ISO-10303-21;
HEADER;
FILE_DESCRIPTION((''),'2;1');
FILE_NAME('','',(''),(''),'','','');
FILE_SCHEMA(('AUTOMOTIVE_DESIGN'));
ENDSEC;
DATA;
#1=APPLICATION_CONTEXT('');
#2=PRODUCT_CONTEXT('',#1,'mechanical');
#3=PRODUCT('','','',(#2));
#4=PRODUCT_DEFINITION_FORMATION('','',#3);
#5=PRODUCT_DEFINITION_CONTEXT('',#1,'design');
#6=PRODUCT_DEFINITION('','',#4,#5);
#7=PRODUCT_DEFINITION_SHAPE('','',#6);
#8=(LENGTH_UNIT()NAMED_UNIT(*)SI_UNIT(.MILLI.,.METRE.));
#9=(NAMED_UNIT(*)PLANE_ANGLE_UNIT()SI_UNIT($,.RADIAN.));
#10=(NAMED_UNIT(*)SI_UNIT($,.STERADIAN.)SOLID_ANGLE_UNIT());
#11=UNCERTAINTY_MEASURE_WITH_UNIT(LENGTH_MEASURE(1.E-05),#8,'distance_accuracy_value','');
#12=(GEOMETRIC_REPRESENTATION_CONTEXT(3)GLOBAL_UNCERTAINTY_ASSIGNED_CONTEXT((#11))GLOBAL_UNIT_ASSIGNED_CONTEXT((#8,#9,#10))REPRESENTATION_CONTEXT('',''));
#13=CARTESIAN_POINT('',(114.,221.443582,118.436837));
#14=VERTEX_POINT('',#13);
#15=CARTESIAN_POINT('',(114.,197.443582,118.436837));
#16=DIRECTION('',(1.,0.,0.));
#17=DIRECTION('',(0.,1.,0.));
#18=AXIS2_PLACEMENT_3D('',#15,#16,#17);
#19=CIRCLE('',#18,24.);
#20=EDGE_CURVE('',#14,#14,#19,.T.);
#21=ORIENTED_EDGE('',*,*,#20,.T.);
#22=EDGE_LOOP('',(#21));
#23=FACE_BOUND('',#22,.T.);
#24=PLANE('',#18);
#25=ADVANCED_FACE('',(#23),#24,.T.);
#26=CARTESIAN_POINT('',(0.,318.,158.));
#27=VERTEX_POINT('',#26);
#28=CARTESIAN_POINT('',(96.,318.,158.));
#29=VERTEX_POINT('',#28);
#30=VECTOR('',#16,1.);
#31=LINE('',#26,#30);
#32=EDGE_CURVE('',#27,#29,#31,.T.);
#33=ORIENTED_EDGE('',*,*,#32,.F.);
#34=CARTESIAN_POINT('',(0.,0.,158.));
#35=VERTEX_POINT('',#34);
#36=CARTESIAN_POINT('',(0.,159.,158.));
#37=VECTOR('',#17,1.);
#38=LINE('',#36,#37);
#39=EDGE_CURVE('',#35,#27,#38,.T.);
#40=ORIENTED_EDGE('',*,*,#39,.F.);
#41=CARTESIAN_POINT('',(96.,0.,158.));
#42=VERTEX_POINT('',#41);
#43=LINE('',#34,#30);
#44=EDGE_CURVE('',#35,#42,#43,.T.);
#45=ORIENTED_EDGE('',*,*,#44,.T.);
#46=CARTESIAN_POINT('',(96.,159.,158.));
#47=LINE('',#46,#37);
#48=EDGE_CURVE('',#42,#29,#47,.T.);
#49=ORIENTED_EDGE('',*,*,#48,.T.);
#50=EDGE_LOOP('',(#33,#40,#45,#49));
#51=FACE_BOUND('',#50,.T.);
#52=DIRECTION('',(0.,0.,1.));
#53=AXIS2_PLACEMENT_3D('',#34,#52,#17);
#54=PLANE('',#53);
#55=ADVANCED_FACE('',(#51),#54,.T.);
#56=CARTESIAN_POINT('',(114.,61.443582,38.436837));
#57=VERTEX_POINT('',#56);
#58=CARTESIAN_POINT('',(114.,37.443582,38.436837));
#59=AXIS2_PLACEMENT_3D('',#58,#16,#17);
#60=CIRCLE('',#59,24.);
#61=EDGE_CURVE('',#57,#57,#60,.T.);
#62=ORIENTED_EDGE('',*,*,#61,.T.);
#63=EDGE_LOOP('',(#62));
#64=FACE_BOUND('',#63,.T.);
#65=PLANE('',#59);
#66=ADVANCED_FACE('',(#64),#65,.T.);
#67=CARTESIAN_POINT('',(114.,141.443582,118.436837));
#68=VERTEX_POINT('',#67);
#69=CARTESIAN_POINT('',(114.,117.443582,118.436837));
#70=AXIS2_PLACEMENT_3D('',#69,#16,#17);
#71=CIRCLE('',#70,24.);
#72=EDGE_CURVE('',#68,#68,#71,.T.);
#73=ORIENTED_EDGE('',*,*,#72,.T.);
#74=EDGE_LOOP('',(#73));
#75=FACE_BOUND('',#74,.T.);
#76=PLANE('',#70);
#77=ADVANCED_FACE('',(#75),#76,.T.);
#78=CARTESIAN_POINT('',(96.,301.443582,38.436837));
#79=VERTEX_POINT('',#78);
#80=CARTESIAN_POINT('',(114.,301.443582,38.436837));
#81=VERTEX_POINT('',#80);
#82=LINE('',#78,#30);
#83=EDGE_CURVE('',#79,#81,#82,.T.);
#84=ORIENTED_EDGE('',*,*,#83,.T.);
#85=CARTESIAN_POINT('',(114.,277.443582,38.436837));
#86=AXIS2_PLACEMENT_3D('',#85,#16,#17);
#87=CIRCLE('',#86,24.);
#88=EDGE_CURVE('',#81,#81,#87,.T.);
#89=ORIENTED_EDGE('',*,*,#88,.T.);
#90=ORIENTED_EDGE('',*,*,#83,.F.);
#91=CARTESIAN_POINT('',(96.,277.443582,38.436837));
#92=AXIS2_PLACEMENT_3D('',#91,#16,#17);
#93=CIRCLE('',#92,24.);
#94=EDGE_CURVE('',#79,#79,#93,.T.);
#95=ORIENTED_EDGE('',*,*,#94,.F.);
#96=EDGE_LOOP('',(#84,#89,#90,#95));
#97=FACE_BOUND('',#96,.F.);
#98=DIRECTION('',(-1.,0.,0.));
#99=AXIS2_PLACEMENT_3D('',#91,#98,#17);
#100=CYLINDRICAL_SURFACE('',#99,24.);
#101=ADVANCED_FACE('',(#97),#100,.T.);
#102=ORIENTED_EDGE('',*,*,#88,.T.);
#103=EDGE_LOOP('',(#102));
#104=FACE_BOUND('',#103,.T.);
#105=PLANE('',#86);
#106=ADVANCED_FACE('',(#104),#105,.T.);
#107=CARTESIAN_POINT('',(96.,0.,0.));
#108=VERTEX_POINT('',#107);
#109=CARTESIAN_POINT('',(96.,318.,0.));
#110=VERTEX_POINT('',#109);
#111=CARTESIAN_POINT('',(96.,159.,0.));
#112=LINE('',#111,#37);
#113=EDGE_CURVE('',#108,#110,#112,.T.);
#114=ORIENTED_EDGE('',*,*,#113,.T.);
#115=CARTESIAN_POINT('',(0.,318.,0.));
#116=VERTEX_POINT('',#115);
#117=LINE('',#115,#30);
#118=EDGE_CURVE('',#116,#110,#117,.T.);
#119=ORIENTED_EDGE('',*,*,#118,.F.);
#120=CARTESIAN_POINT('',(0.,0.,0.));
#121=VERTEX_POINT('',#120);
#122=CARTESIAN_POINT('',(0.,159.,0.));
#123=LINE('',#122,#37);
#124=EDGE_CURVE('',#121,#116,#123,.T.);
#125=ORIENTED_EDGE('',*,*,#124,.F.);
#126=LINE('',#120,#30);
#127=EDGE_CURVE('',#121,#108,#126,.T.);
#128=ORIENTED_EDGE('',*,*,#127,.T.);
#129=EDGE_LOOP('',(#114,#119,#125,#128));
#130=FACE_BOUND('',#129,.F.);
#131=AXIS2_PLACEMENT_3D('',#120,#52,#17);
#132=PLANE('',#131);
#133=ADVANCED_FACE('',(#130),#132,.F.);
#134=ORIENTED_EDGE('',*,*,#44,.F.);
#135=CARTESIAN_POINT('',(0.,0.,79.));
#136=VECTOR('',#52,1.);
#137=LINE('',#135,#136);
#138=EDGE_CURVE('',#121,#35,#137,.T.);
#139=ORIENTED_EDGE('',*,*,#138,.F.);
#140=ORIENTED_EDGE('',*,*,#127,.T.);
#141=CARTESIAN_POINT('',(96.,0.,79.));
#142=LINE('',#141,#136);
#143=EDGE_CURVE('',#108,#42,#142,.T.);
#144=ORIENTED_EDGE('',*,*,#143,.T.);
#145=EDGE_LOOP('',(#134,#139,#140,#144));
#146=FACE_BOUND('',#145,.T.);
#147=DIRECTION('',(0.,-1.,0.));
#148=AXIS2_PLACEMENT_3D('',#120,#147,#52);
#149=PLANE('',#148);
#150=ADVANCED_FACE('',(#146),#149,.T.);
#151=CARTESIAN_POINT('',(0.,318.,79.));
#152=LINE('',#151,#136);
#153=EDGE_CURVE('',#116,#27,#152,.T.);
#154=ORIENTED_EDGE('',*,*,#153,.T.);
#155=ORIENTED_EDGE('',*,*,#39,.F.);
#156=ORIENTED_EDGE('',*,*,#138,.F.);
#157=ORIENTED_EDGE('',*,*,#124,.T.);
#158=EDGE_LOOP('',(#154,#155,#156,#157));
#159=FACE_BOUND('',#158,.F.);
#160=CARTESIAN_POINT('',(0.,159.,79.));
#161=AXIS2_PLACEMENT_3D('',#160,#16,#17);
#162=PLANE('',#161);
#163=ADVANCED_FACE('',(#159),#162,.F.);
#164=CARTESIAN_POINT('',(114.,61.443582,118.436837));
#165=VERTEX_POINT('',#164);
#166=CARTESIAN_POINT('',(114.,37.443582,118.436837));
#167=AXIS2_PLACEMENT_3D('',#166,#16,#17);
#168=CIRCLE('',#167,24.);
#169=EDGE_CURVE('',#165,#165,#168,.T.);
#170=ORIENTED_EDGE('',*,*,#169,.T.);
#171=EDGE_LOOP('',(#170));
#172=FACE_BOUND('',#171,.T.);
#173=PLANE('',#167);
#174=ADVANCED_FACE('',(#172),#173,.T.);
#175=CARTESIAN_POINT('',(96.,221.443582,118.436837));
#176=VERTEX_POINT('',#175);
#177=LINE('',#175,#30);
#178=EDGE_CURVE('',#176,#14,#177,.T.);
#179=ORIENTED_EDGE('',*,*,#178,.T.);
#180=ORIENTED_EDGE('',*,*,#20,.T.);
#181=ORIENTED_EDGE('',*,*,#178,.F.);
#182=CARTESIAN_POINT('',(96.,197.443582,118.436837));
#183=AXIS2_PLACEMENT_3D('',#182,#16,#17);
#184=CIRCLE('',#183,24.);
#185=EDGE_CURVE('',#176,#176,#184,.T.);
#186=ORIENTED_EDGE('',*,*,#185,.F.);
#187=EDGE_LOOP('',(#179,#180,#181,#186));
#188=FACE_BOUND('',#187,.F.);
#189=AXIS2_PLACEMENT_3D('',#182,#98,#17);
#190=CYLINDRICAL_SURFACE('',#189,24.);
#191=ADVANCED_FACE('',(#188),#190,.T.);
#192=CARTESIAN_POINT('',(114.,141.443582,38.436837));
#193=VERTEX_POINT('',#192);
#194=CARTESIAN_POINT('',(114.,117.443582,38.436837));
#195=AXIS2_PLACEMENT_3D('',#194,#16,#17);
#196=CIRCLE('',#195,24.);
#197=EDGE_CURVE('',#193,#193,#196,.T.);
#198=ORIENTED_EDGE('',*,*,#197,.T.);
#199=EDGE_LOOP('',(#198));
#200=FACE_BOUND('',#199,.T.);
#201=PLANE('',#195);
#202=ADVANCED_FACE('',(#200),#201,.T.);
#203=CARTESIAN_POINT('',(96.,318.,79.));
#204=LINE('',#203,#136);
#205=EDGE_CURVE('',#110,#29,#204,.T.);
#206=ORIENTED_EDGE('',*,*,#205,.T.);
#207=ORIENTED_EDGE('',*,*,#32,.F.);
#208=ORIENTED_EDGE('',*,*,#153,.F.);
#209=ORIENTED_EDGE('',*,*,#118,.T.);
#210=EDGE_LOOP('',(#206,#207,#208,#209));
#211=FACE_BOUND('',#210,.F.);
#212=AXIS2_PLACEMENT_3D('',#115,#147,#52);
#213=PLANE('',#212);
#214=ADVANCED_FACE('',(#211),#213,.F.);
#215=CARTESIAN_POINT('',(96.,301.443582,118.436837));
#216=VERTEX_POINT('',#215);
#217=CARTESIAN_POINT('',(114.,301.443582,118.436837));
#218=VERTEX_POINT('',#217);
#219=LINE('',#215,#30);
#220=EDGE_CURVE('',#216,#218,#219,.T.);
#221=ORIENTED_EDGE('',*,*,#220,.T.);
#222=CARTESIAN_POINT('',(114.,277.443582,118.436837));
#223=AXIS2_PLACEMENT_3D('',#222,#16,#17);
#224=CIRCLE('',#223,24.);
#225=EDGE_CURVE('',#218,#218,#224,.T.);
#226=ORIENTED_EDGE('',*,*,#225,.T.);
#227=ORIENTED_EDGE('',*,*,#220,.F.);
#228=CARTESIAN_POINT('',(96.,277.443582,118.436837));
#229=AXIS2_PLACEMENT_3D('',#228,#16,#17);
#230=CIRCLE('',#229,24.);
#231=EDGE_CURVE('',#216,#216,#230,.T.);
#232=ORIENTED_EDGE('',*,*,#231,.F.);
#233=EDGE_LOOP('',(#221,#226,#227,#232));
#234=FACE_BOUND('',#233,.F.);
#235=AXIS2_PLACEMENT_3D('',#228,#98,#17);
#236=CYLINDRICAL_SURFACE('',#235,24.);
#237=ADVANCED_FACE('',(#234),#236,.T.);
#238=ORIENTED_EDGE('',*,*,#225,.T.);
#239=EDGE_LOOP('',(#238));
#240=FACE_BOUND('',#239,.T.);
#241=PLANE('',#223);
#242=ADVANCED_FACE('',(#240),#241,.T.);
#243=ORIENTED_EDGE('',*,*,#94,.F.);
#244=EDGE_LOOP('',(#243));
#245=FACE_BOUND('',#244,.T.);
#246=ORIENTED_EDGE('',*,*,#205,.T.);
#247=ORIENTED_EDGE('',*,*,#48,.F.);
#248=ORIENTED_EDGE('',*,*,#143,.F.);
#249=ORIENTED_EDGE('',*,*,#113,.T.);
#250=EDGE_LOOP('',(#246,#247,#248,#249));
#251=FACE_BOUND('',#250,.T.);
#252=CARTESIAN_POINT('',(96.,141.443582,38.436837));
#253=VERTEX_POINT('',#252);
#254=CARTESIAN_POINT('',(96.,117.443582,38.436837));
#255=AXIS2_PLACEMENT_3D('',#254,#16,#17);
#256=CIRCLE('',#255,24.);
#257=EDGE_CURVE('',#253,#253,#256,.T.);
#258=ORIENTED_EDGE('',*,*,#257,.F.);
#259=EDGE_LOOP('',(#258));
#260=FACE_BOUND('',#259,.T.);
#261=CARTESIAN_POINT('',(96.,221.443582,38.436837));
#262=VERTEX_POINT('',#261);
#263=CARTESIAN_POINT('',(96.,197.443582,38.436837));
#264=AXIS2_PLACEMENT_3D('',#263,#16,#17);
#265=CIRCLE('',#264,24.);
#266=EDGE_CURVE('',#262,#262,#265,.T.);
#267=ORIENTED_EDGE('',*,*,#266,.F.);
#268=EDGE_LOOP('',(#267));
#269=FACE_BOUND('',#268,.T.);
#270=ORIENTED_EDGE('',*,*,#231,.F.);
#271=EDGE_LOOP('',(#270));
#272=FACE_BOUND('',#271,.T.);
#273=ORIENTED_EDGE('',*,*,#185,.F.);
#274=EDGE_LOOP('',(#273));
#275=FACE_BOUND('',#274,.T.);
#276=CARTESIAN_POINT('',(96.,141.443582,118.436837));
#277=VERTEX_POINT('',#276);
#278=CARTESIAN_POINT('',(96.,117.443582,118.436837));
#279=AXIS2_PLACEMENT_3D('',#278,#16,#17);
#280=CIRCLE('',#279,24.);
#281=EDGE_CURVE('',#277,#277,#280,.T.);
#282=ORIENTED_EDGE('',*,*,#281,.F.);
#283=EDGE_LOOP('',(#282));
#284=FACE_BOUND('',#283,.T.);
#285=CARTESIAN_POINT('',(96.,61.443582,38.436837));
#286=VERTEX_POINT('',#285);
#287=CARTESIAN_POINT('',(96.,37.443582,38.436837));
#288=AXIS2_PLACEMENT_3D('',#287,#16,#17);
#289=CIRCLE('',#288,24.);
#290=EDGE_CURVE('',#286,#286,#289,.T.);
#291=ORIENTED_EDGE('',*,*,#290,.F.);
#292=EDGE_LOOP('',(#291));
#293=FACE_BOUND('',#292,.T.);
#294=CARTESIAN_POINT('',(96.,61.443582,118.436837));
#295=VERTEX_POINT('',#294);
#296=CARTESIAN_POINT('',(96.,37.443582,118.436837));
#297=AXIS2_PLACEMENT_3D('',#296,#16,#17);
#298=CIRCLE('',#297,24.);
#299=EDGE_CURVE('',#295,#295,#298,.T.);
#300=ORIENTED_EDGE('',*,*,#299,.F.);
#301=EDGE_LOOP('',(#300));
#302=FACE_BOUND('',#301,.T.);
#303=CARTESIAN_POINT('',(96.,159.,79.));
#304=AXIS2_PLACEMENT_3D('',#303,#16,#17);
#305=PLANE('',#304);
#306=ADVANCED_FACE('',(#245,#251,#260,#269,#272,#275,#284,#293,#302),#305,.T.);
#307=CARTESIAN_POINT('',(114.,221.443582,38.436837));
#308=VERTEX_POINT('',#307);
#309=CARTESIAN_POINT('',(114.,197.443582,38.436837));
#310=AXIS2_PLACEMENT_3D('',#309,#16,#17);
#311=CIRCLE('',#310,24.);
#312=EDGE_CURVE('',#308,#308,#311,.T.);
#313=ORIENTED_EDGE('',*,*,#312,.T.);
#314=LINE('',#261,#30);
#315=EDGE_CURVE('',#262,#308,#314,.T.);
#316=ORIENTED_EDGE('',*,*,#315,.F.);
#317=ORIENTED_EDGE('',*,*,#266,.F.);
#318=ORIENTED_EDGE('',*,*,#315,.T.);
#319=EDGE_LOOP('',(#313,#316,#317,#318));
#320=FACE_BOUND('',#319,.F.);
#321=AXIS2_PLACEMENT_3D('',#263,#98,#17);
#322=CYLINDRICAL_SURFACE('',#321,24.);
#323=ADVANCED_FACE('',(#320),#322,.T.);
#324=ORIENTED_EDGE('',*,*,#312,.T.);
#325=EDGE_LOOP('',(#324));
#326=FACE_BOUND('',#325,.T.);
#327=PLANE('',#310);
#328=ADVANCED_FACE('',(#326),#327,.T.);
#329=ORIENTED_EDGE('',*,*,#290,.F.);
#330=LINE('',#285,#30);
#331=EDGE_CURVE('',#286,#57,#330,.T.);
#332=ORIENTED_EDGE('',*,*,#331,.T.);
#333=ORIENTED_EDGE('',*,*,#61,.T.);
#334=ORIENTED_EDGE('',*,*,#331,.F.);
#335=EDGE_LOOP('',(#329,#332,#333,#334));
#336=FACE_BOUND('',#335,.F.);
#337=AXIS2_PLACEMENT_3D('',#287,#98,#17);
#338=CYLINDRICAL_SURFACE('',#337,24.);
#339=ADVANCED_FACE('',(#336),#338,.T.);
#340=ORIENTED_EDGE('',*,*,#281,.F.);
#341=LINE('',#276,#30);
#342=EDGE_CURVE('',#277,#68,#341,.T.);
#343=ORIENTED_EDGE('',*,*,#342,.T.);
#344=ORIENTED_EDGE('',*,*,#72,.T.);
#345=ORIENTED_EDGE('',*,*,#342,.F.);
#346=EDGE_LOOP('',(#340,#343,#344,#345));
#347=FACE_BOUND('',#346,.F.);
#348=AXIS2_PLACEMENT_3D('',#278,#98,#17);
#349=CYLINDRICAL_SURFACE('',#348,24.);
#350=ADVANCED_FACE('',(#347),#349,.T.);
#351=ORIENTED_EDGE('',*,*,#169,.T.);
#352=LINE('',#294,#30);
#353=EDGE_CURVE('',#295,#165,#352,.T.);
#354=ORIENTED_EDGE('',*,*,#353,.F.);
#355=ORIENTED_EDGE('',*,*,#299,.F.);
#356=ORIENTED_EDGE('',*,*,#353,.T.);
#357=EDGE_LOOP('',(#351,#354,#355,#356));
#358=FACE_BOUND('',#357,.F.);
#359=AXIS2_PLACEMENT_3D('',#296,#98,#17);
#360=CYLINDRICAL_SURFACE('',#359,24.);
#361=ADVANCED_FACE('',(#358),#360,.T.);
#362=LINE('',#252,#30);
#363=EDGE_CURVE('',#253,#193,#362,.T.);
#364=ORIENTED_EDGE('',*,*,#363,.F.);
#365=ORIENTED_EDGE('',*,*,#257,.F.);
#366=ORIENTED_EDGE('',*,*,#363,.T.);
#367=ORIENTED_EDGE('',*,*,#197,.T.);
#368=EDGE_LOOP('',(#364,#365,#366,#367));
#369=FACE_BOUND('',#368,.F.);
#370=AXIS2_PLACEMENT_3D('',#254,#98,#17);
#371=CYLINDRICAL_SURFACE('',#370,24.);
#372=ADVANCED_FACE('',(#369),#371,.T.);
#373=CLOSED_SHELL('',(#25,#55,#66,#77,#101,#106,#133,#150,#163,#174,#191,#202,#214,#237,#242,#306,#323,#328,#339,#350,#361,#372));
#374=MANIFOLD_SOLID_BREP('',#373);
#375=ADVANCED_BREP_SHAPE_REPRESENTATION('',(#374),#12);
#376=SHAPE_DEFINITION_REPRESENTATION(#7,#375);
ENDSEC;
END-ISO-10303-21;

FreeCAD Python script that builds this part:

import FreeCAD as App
import Part
import Sketcher
Q = App.Units.Quantity

doc = App.newDocument("Part")
body = doc.addObject("PartDesign::Body", "Body")

sketch1 = doc.addObject("Sketcher::SketchObject", "Sketch")
body.addObject(sketch1)
sketch1.AttachmentSupport = (doc.YZ_Plane, [""])
sketch1.MapMode = "FlatFace"
sketch1.addGeometry([
    Part.LineSegment(App.Vector(0, 158, 0), App.Vector(0, 0, 0)),
    Part.LineSegment(App.Vector(0, 0, 0), App.Vector(318, 0, 0)),
    Part.LineSegment(App.Vector(318, 0, 0), App.Vector(318, 158, 0)),
    Part.LineSegment(App.Vector(318, 158, 0), App.Vector(0, 158, 0)),
], False)
sketch1.addConstraint([
    Sketcher.Constraint("Coincident", 0, 2, 1, 1),
    Sketcher.Constraint("Coincident", 1, 2, 2, 1),
    Sketcher.Constraint("Coincident", 2, 2, 3, 1),
    Sketcher.Constraint("Coincident", 3, 2, 0, 1),
    Sketcher.Constraint("Vertical", 0),
    Sketcher.Constraint("Horizontal", 1),
    Sketcher.Constraint("Vertical", 2),
    Sketcher.Constraint("Horizontal", 3),
    Sketcher.Constraint("Coincident", 0, 2, -1, 1),
    Sketcher.Constraint("DistanceX", 1, 1, 1, 2, Q("318 mm")),
    Sketcher.Constraint("DistanceY", 0, 2, 0, 1, Q("158 mm")),
])
pad1 = doc.addObject("PartDesign::Pad", "Pad")
body.addObject(pad1)
pad1.Profile = sketch1
pad1.Length = 96

sketch2 = doc.addObject("Sketcher::SketchObject", "Sketch001")
body.addObject(sketch2)
sketch2.AttachmentSupport = (doc.YZ_Plane, [""])
sketch2.MapMode = "FlatFace"
sketch2.AttachmentOffset = App.Placement(App.Vector(0, 0, 96), App.Rotation())
sketch2.addGeometry([
    Part.Circle(App.Vector(37, 118, 0), App.Vector(0, 0, 1), 24),
    Part.Circle(App.Vector(117, 118, 0), App.Vector(0, 0, 1), 24),
    Part.Circle(App.Vector(197, 118, 0), App.Vector(0, 0, 1), 24),
    Part.Circle(App.Vector(277, 118, 0), App.Vector(0, 0, 1), 24),
    Part.Circle(App.Vector(277, 38, 0), App.Vector(0, 0, 1), 24),
    Part.Circle(App.Vector(197, 38, 0), App.Vector(0, 0, 1), 24),
    Part.Circle(App.Vector(117, 38, 0), App.Vector(0, 0, 1), 24),
    Part.Circle(App.Vector(37, 38, 0), App.Vector(0, 0, 1), 24),
], False)
sketch2.addConstraint([
    Sketcher.Constraint("Equal", 0, 1),
    Sketcher.Constraint("Equal", 1, 2),
    Sketcher.Constraint("Equal", 2, 3),
    Sketcher.Constraint("Equal", 3, 4),
    Sketcher.Constraint("Equal", 4, 5),
    Sketcher.Constraint("Equal", 5, 6),
    Sketcher.Constraint("Equal", 6, 7),
    Sketcher.Constraint("Horizontal", 0, 3, 1, 3),
    Sketcher.Constraint("Horizontal", 1, 3, 2, 3),
    Sketcher.Constraint("Horizontal", 2, 3, 3, 3),
    Sketcher.Constraint("Horizontal", 4, 3, 5, 3),
    Sketcher.Constraint("Horizontal", 5, 3, 6, 3),
    Sketcher.Constraint("Horizontal", 6, 3, 7, 3),
    Sketcher.Constraint("Vertical", 3, 3, 4, 3),
    Sketcher.Constraint("Vertical", 2, 3, 5, 3),
    Sketcher.Constraint("Vertical", 1, 3, 6, 3),
    Sketcher.Constraint("Vertical", 0, 3, 7, 3),
    Sketcher.Constraint("Diameter", 0, Q("48 mm")),
    Sketcher.Constraint("DistanceX", 0, 3, 1, 3, Q("80 mm")),
    Sketcher.Constraint("DistanceX", 1, 3, 2, 3, Q("80 mm")),
    Sketcher.Constraint("DistanceX", 2, 3, 3, 3, Q("80 mm")),
    Sketcher.Constraint("DistanceY", 4, 3, 3, 3, Q("80 mm")),
    Sketcher.Constraint("DistanceX", -1, 1, 2, 3, Q("197.443582 mm")),
    Sketcher.Constraint("DistanceY", -1, 1, 0, 3, Q("118.436837 mm")),
])
pad2 = doc.addObject("PartDesign::Pad", "Pad001")
body.addObject(pad2)
pad2.Profile = sketch2
pad2.Length = 18

doc.recompute()
